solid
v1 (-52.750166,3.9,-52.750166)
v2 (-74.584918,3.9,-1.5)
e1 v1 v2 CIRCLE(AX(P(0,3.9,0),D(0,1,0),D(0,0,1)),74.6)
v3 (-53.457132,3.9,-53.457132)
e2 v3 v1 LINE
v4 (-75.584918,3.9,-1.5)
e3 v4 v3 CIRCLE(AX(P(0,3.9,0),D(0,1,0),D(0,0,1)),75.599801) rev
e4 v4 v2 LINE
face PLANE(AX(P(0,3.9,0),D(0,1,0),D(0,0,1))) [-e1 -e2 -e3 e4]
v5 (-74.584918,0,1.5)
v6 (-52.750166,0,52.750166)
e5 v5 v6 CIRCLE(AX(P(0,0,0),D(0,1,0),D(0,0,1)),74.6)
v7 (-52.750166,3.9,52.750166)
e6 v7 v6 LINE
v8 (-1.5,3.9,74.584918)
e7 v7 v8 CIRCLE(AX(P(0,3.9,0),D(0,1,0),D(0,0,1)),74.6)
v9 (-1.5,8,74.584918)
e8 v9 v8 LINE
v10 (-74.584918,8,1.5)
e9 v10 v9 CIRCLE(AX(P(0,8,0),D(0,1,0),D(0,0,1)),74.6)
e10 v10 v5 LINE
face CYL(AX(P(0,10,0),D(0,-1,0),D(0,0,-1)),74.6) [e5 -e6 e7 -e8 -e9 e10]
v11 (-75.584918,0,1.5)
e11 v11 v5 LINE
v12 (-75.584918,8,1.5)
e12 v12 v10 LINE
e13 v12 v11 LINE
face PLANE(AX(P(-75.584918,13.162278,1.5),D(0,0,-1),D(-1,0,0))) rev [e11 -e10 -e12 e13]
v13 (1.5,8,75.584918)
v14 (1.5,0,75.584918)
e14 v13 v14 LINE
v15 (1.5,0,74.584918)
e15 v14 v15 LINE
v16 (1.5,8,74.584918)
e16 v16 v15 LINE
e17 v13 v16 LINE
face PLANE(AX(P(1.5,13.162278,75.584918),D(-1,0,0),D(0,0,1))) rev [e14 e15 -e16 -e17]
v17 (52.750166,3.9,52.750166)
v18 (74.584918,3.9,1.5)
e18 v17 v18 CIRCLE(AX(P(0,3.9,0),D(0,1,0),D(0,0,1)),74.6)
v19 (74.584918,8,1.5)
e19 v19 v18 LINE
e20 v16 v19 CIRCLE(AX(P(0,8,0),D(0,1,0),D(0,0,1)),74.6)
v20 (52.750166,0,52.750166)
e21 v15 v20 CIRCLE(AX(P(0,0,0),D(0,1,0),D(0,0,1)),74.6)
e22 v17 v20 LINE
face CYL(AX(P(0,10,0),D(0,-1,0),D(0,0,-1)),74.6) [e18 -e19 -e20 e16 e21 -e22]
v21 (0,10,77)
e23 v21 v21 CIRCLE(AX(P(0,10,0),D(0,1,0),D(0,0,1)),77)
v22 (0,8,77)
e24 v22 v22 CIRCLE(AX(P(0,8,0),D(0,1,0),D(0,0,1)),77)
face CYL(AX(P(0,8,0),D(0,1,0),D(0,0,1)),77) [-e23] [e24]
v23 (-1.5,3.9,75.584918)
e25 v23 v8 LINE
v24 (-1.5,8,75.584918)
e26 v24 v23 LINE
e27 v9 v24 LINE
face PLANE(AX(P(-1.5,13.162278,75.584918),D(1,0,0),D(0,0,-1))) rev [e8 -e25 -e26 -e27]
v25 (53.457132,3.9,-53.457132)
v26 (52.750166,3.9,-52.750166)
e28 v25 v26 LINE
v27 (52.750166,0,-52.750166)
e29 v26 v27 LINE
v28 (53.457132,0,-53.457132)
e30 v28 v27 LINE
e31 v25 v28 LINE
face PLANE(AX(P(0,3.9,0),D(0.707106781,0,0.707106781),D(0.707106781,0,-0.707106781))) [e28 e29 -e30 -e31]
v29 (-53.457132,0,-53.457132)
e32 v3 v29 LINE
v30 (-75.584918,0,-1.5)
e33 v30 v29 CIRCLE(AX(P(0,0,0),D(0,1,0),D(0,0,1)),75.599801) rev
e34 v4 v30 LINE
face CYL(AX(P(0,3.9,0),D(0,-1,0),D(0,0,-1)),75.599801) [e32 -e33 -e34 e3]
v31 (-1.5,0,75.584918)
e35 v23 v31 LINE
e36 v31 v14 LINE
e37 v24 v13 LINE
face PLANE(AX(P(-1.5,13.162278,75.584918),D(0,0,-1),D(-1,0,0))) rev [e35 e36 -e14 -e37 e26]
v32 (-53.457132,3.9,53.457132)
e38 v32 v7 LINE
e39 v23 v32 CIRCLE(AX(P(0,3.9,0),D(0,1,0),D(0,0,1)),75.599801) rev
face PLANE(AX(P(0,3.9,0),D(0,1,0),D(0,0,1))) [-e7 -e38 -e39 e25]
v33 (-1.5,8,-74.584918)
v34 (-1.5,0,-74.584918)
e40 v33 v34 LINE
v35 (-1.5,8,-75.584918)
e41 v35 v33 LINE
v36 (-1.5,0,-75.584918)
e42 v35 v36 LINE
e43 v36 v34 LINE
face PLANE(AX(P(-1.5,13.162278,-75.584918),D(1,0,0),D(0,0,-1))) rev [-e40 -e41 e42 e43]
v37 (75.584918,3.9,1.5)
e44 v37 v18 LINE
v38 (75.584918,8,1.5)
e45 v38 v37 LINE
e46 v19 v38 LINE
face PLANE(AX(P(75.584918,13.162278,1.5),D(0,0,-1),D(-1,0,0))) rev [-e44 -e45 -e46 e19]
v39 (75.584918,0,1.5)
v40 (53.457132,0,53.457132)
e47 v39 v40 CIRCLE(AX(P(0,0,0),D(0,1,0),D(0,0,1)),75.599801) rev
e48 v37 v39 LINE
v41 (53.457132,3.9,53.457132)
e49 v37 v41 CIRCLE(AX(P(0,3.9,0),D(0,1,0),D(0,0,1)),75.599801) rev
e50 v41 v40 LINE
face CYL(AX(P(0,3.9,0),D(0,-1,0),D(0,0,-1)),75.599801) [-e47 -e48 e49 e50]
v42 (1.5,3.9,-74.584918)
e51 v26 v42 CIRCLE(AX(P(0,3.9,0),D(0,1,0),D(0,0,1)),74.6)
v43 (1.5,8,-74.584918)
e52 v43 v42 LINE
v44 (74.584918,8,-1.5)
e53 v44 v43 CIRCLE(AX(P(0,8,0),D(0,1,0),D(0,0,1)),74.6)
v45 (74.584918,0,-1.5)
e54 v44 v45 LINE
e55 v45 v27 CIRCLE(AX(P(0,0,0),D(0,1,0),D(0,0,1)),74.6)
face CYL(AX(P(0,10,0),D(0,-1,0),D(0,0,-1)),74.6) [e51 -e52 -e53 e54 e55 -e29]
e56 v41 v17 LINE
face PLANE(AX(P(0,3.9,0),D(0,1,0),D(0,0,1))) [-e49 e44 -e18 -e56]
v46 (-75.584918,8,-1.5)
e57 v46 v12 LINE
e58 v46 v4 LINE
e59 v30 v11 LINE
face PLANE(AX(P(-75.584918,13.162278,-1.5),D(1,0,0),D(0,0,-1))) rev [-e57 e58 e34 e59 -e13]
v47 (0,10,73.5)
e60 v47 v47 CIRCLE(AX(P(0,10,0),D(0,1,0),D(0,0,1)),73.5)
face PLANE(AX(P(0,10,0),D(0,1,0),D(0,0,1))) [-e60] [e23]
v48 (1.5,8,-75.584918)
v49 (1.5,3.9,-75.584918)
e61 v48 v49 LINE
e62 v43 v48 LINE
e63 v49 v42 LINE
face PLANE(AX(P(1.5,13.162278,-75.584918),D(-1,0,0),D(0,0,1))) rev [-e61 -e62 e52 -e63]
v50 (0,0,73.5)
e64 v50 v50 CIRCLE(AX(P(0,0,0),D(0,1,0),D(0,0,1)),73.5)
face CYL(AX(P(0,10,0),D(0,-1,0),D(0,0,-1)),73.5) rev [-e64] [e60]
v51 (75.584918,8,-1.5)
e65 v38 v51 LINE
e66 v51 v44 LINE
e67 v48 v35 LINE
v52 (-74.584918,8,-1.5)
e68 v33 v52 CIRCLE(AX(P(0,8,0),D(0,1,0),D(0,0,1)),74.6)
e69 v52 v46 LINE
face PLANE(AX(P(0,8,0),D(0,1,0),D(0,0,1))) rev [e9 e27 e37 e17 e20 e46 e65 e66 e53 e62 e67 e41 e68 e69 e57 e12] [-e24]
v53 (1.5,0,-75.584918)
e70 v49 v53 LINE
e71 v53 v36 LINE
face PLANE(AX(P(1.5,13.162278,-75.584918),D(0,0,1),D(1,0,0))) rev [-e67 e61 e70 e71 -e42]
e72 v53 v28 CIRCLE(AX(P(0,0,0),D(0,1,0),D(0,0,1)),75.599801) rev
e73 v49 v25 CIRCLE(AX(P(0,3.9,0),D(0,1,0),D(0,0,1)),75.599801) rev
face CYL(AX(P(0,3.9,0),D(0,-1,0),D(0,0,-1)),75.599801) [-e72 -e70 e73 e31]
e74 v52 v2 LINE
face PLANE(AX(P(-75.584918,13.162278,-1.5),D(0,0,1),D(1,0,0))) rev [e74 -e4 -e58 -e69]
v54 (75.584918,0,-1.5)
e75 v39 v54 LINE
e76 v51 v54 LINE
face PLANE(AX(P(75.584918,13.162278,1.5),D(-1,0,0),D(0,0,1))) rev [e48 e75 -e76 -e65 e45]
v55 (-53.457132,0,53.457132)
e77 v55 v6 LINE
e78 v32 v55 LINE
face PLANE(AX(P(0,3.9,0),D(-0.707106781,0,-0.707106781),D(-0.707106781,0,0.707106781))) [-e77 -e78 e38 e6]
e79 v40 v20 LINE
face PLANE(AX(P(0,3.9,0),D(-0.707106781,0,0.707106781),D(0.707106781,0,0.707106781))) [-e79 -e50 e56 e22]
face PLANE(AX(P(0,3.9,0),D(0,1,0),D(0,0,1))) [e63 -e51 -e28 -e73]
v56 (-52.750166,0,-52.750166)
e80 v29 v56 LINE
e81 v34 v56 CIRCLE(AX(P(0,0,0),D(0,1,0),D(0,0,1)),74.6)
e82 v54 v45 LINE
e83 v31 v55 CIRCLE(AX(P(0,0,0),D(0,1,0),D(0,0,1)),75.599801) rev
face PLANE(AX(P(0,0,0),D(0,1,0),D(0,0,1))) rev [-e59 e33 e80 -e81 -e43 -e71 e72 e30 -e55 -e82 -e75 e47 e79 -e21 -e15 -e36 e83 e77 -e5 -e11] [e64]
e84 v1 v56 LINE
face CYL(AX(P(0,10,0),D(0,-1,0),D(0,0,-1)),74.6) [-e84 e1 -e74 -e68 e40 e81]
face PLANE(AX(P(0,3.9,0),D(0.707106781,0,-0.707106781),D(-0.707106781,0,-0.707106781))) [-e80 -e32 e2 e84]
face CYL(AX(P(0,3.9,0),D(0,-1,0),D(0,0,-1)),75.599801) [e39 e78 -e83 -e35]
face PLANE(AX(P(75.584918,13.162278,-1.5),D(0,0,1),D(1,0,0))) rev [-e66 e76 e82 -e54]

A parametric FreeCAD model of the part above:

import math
import FreeCAD as App
import Part
import Sketcher

V = App.Vector
Q = App.Units.Quantity

doc = App.newDocument("Part")
body = doc.addObject("PartDesign::Body", "Body")

sketch1 = body.newObject("Sketcher::SketchObject", "Sketch")
sketch1.AttachmentSupport = (doc.getObject("XZ_Plane"), [""])
sketch1.MapMode = "FlatFace"
sketch1.addGeometry(Part.Circle(V(0, 0, 0), V(0, 0, 1), 75), False)
sketch1.addGeometry(Part.Circle(V(0, 0, 0), V(0, 0, 1), 74), False)
sketch1.addConstraint(Sketcher.Constraint("Coincident", 0, 3, -1, 1))
sketch1.addConstraint(Sketcher.Constraint("Coincident", 1, 3, -1, 1))
sketch1.addConstraint(Sketcher.Constraint("Diameter", 1, Q("147 mm")))
sketch1.addConstraint(Sketcher.Constraint("Diameter", 0, Q("149.2 mm")))
pad1 = body.newObject("PartDesign::Pad", "Pad")
pad1.Profile = sketch1
pad1.Length = 10
pad1.Reversed = True

sketch2 = body.newObject("Sketcher::SketchObject", "Sketch001")
sketch2.AttachmentSupport = (doc.getObject("XZ_Plane"), [""])
sketch2.MapMode = "FlatFace"
sketch2.addGeometry(Part.LineSegment(V(74.6, -1.5, 0), V(74.6, 1.5, 0)), False)
sketch2.addGeometry(Part.LineSegment(V(74.6, 1.5, 0), V(75.6, 1.5, 0)), False)
sketch2.addGeometry(Part.LineSegment(V(75.6, 1.5, 0), V(75.6, -1.5, 0)), False)
sketch2.addGeometry(Part.LineSegment(V(75.6, -1.5, 0), V(74.6, -1.5, 0)), False)
sketch2.addGeometry(Part.LineSegment(V(-1.5, 74.6, 0), V(-1.5, 75.6, 0)), False)
sketch2.addGeometry(Part.LineSegment(V(-1.5, 75.6, 0), V(1.5, 75.6, 0)), False)
sketch2.addGeometry(Part.LineSegment(V(1.5, 75.6, 0), V(1.5, 74.6, 0)), False)
sketch2.addGeometry(Part.LineSegment(V(1.5, 74.6, 0), V(-1.5, 74.6, 0)), False)
sketch2.addGeometry(Part.LineSegment(V(-75.6, -1.5, 0), V(-75.6, 1.5, 0)), False)
sketch2.addGeometry(Part.LineSegment(V(-75.6, 1.5, 0), V(-74.6, 1.5, 0)), False)
sketch2.addGeometry(Part.LineSegment(V(-74.6, 1.5, 0), V(-74.6, -1.5, 0)), False)
sketch2.addGeometry(Part.LineSegment(V(-74.6, -1.5, 0), V(-75.6, -1.5, 0)), False)
sketch2.addGeometry(Part.LineSegment(V(-1.5, -75.6, 0), V(-1.5, -74.6, 0)), False)
sketch2.addGeometry(Part.LineSegment(V(-1.5, -74.6, 0), V(1.5, -74.6, 0)), False)
sketch2.addGeometry(Part.LineSegment(V(1.5, -74.6, 0), V(1.5, -75.6, 0)), False)
sketch2.addGeometry(Part.LineSegment(V(1.5, -75.6, 0), V(-1.5, -75.6, 0)), False)
sketch2.addConstraint(Sketcher.Constraint("Coincident", 0, 2, 1, 1))
sketch2.addConstraint(Sketcher.Constraint("Coincident", 1, 2, 2, 1))
sketch2.addConstraint(Sketcher.Constraint("Coincident", 2, 2, 3, 1))
sketch2.addConstraint(Sketcher.Constraint("Coincident", 3, 2, 0, 1))
sketch2.addConstraint(Sketcher.Constraint("Coincident", 4, 2, 5, 1))
sketch2.addConstraint(Sketcher.Constraint("Coincident", 5, 2, 6, 1))
sketch2.addConstraint(Sketcher.Constraint("Coincident", 6, 2, 7, 1))
sketch2.addConstraint(Sketcher.Constraint("Coincident", 7, 2, 4, 1))
sketch2.addConstraint(Sketcher.Constraint("Coincident", 8, 2, 9, 1))
sketch2.addConstraint(Sketcher.Constraint("Coincident", 9, 2, 10, 1))
sketch2.addConstraint(Sketcher.Constraint("Coincident", 10, 2, 11, 1))
sketch2.addConstraint(Sketcher.Constraint("Coincident", 11, 2, 8, 1))
sketch2.addConstraint(Sketcher.Constraint("Coincident", 12, 2, 13, 1))
sketch2.addConstraint(Sketcher.Constraint("Coincident", 13, 2, 14, 1))
sketch2.addConstraint(Sketcher.Constraint("Coincident", 14, 2, 15, 1))
sketch2.addConstraint(Sketcher.Constraint("Coincident", 15, 2, 12, 1))
sketch2.addConstraint(Sketcher.Constraint("Vertical", 0))
sketch2.addConstraint(Sketcher.Constraint("Horizontal", 1))
sketch2.addConstraint(Sketcher.Constraint("Vertical", 2))
sketch2.addConstraint(Sketcher.Constraint("Horizontal", 3))
sketch2.addConstraint(Sketcher.Constraint("Vertical", 4))
sketch2.addConstraint(Sketcher.Constraint("Horizontal", 5))
sketch2.addConstraint(Sketcher.Constraint("Vertical", 6))
sketch2.addConstraint(Sketcher.Constraint("Horizontal", 7))
sketch2.addConstraint(Sketcher.Constraint("Vertical", 8))
sketch2.addConstraint(Sketcher.Constraint("Horizontal", 9))
sketch2.addConstraint(Sketcher.Constraint("Vertical", 10))
sketch2.addConstraint(Sketcher.Constraint("Horizontal", 11))
sketch2.addConstraint(Sketcher.Constraint("Vertical", 12))
sketch2.addConstraint(Sketcher.Constraint("Horizontal", 13))
sketch2.addConstraint(Sketcher.Constraint("Vertical", 14))
sketch2.addConstraint(Sketcher.Constraint("Horizontal", 15))
sketch2.addConstraint(Sketcher.Constraint("Symmetric", 2, 2, 8, 2, -1, 1))
sketch2.addConstraint(Sketcher.Constraint("Symmetric", 0, 2, 10, 2, -1, 1))
sketch2.addConstraint(Sketcher.Constraint("Symmetric", 6, 2, 12, 2, -1, 1))
sketch2.addConstraint(Sketcher.Constraint("Symmetric", 4, 2, 14, 2, -1, 1))
sketch2.addConstraint(Sketcher.Constraint("Horizontal", 1, 2, 8, 2))
sketch2.addConstraint(Sketcher.Constraint("Vertical", 7, 2, 12, 2))
sketch2.addConstraint(Sketcher.Constraint("Equal", 15, 0))
sketch2.addConstraint(Sketcher.Constraint("Equal", 11, 4))
sketch2.addConstraint(Sketcher.Constraint("DistanceX", 1, 1, 1, 2, Q("1 mm")))
sketch2.addConstraint(Sketcher.Constraint("DistanceX", 5, 1, 5, 2, Q("3 mm")))
sketch2.addConstraint(Sketcher.Constraint("DistanceX", -1, 1, 0, 2, Q("74.584918 mm")))
sketch2.addConstraint(Sketcher.Constraint("DistanceY", -1, 1, 4, 2, Q("75.584918 mm")))
pad2 = body.newObject("PartDesign::Pad", "Pad001")
pad2.Profile = sketch2
pad2.Length = 10
pad2.Reversed = True

sketch3 = body.newObject("Sketcher::SketchObject", "Sketch002")
sketch3.AttachmentSupport = (doc.getObject("XZ_Plane"), [""])
sketch3.MapMode = "FlatFace"
sketch3.addGeometry(Part.ArcOfCircle(Part.Circle(V(0, 0, 0), V(0, 0, 1), 75.6), math.radians(-89), math.radians(-45)), False)
sketch3.addGeometry(Part.LineSegment(V(1.5, -75.6, 0), V(1.5, -74.6, 0)), False)
sketch3.addGeometry(Part.ArcOfCircle(Part.Circle(V(0, 0, 0), V(0, 0, 1), 74.6), math.radians(-89), math.radians(-45)), False)
sketch3.addGeometry(Part.LineSegment(V(52.8, -52.8, 0), V(53.5, -53.5, 0)), False)
sketch3.addGeometry(Part.LineSegment(V(52.8, 52.8, 0), V(53.5, 53.5, 0)), False)
sketch3.addGeometry(Part.ArcOfCircle(Part.Circle(V(0, 0, 0), V(0, 0, 1), 75.6), math.radians(1), math.radians(45)), False)
sketch3.addGeometry(Part.LineSegment(V(75.6, 1.5, 0), V(74.6, 1.5, 0)), False)
sketch3.addGeometry(Part.ArcOfCircle(Part.Circle(V(0, 0, 0), V(0, 0, 1), 74.6), math.radians(1), math.radians(45)), False)
sketch3.addGeometry(Part.LineSegment(V(-52.8, 52.8, 0), V(-53.5, 53.5, 0)), False)
sketch3.addGeometry(Part.ArcOfCircle(Part.Circle(V(0, 0, 0), V(0, 0, 1), 75.6), math.radians(91), math.radians(135)), False)
sketch3.addGeometry(Part.LineSegment(V(-1.5, 75.6, 0), V(-1.5, 74.6, 0)), False)
sketch3.addGeometry(Part.ArcOfCircle(Part.Circle(V(0, 0, 0), V(0, 0, 1), 74.6), math.radians(91), math.radians(135)), False)
sketch3.addGeometry(Part.LineSegment(V(-52.8, -52.8, 0), V(-53.5, -53.5, 0)), False)
sketch3.addGeometry(Part.ArcOfCircle(Part.Circle(V(0, 0, 0), V(0, 0, 1), 75.6), math.radians(-179), math.radians(-135)), False)
sketch3.addGeometry(Part.LineSegment(V(-75.6, -1.5, 0), V(-74.6, -1.5, 0)), False)
sketch3.addGeometry(Part.ArcOfCircle(Part.Circle(V(0, 0, 0), V(0, 0, 1), 74.6), math.radians(-179), math.radians(-135)), False)
sketch3.addConstraint(Sketcher.Constraint("Coincident", 0, 1, 1, 1))
sketch3.addConstraint(Sketcher.Constraint("Coincident", 1, 2, 2, 1))
sketch3.addConstraint(Sketcher.Constraint("Coincident", 2, 2, 3, 1))
sketch3.addConstraint(Sketcher.Constraint("Coincident", 3, 2, 0, 2))
sketch3.addConstraint(Sketcher.Constraint("Coincident", 4, 2, 5, 2))
sketch3.addConstraint(Sketcher.Constraint("Coincident", 5, 1, 6, 1))
sketch3.addConstraint(Sketcher.Constraint("Coincident", 6, 2, 7, 1))
sketch3.addConstraint(Sketcher.Constraint("Coincident", 7, 2, 4, 1))
sketch3.addConstraint(Sketcher.Constraint("Coincident", 8, 2, 9, 2))
sketch3.addConstraint(Sketcher.Constraint("Coincident", 9, 1, 10, 1))
sketch3.addConstraint(Sketcher.Constraint("Coincident", 10, 2, 11, 1))
sketch3.addConstraint(Sketcher.Constraint("Coincident", 11, 2, 8, 1))
sketch3.addConstraint(Sketcher.Constraint("Coincident", 12, 2, 13, 2))
sketch3.addConstraint(Sketcher.Constraint("Coincident", 13, 1, 14, 1))
sketch3.addConstraint(Sketcher.Constraint("Coincident", 14, 2, 15, 1))
sketch3.addConstraint(Sketcher.Constraint("Coincident", 15, 2, 12, 1))
sketch3.addConstraint(Sketcher.Constraint("Vertical", 1))
sketch3.addConstraint(Sketcher.Constraint("Horizontal", 6))
sketch3.addConstraint(Sketcher.Constraint("Vertical", 10))
sketch3.addConstraint(Sketcher.Constraint("Horizontal", 14))
sketch3.addConstraint(Sketcher.Constraint("Coincident", 0, 3, -1, 1))
sketch3.addConstraint(Sketcher.Constraint("Coincident", 2, 3, -1, 1))
sketch3.addConstraint(Sketcher.Constraint("Coincident", 5, 3, -1, 1))
sketch3.addConstraint(Sketcher.Constraint("Coincident", 7, 3, -1, 1))
sketch3.addConstraint(Sketcher.Constraint("Coincident", 9, 3, -1, 1))
sketch3.addConstraint(Sketcher.Constraint("Coincident", 11, 3, -1, 1))
sketch3.addConstraint(Sketcher.Constraint("Coincident", 13, 3, -1, 1))
sketch3.addConstraint(Sketcher.Constraint("Coincident", 15, 3, -1, 1))
sketch3.addConstraint(Sketcher.Constraint("Equal", 0, 5))
sketch3.addConstraint(Sketcher.Constraint("Equal", 2, 7))
sketch3.addConstraint(Sketcher.Constraint("Equal", 5, 9))
sketch3.addConstraint(Sketcher.Constraint("Equal", 7, 11))
sketch3.addConstraint(Sketcher.Constraint("Equal", 9, 13))
sketch3.addConstraint(Sketcher.Constraint("Equal", 11, 15))
sketch3.addConstraint(Sketcher.Constraint("Perpendicular", 3, 4))
sketch3.addConstraint(Sketcher.Constraint("Perpendicular", 4, 8))
sketch3.addConstraint(Sketcher.Constraint("Perpendicular", 8, 12))
sketch3.addConstraint(Sketcher.Constraint("Horizontal", 4, 2, 8, 2))
sketch3.addConstraint(Sketcher.Constraint("Horizontal", 7, 2, 11, 2))
sketch3.addConstraint(Sketcher.Constraint("Horizontal", 3, 2, 12, 2))
sketch3.addConstraint(Sketcher.Constraint("Vertical", 3, 2, 4, 2))
sketch3.addConstraint(Sketcher.Constraint("Radius", 2, Q("74.6 mm")))
sketch3.addConstraint(Sketcher.Constraint("DistanceX", 6, 2, 6, 1, Q("1 mm")))
sketch3.addConstraint(Sketcher.Constraint("DistanceX", -1, 1, 0, 1, Q("1.5 mm")))
sketch3.addConstraint(Sketcher.Constraint("DistanceY", -1, 1, 5, 1, Q("1.5 mm")))
sketch3.addConstraint(Sketcher.Constraint("DistanceX", 9, 1, -1, 1, Q("1.5 mm")))
sketch3.addConstraint(Sketcher.Constraint("DistanceY", 13, 1, -1, 1, Q("1.5 mm")))
sketch3.addConstraint(Sketcher.Constraint("DistanceX", -1, 1, 3, 2, Q("53.457132 mm")))
pad3 = body.newObject("PartDesign::Pad", "Pad002")
pad3.Profile = sketch3
pad3.Length = 3.9
pad3.Reversed = True

sketch4 = body.newObject("Sketcher::SketchObject", "Sketch003")
sketch4.AttachmentSupport = (doc.getObject("XZ_Plane"), [""])
sketch4.MapMode = "FlatFace"
sketch4.AttachmentOffset = App.Placement(V(0, 0, -8), App.Rotation())
sketch4.addGeometry(Part.Circle(V(0, 0, 0), V(0, 0, 1), 77), False)
sketch4.addGeometry(Part.Circle(V(0, 0, 0), V(0, 0, 1), 75), False)
sketch4.addConstraint(Sketcher.Constraint("Coincident", 0, 3, -1, 1))
sketch4.addConstraint(Sketcher.Constraint("Coincident", 1, 3, -1, 1))
sketch4.addConstraint(Sketcher.Constraint("Diameter", 0, Q("154 mm")))
sketch4.addConstraint(Sketcher.Constraint("Diameter", 1, Q("149.2 mm")))
pad4 = body.newObject("PartDesign::Pad", "Pad003")
pad4.Profile = sketch4
pad4.Length = 2
pad4.Reversed = True

doc.recompute()
